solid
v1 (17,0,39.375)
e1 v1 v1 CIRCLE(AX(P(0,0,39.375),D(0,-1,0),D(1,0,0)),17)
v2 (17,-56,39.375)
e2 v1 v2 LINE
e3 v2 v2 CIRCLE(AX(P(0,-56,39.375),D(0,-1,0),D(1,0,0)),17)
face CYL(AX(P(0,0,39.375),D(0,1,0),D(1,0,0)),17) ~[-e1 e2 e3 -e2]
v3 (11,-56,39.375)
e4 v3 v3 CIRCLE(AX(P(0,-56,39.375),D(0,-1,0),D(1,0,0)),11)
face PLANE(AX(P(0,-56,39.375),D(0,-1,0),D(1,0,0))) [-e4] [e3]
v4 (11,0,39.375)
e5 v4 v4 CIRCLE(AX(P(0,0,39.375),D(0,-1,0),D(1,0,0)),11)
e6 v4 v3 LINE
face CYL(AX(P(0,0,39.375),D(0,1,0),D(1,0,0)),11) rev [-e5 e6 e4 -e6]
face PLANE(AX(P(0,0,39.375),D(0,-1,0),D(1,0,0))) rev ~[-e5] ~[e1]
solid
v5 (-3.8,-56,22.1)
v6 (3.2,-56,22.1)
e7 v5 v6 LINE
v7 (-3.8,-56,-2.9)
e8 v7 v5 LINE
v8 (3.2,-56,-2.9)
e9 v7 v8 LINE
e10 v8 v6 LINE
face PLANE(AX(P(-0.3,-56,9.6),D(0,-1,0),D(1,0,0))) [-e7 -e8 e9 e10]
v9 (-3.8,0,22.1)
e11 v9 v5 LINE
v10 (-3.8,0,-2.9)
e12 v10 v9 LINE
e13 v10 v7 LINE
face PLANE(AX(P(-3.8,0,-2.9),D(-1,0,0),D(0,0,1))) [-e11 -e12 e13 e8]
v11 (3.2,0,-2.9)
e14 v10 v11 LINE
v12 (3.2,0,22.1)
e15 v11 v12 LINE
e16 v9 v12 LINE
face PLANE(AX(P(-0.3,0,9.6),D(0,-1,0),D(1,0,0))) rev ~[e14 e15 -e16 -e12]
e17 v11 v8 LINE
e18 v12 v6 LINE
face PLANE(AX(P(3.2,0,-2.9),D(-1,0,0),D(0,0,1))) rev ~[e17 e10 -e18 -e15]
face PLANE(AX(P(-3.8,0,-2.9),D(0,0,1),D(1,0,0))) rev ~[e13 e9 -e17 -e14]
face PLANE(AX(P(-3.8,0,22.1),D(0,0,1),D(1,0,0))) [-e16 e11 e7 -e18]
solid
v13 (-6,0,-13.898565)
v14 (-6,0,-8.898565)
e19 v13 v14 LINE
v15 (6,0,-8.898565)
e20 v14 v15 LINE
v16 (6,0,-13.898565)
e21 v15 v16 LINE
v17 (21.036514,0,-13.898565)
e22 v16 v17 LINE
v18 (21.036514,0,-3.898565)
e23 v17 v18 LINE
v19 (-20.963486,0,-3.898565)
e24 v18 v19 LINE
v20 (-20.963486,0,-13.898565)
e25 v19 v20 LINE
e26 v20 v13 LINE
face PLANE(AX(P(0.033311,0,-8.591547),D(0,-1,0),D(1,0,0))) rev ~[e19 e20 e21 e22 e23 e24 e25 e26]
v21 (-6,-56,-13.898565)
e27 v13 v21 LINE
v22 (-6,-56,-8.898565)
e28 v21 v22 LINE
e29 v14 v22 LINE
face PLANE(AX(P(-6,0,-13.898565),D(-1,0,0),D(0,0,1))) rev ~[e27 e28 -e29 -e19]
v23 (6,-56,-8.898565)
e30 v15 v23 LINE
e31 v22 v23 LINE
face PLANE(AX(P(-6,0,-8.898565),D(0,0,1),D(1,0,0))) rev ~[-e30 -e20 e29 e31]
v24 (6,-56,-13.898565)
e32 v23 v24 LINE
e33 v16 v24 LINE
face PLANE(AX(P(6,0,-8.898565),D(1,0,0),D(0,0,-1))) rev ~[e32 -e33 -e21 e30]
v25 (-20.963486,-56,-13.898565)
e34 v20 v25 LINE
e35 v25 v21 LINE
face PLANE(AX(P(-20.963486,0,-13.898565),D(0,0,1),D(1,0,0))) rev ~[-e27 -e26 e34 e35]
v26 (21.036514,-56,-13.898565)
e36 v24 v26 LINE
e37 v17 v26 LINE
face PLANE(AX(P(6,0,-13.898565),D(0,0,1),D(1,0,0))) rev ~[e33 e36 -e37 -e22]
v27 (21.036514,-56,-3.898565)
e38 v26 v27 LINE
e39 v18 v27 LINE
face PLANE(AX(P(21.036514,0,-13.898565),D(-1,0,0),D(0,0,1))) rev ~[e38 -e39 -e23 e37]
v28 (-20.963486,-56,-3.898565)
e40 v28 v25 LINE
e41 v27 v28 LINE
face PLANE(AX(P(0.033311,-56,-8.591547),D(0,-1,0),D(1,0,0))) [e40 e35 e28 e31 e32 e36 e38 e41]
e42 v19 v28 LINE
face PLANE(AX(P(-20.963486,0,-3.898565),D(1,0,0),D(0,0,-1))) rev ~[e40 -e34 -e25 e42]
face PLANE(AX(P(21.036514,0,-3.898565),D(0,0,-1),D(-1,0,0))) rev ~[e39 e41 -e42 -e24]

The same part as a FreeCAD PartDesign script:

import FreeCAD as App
import Part
import Sketcher

V = App.Vector
Q = App.Units.Quantity


def add_polygon(sketch, points):
    """Adds a closed chain of lines whose ends are joined by coincident constraints."""
    first, n = sketch.GeometryCount, len(points)
    for a, b in zip(points, points[1:] + points[:1]):
        sketch.addGeometry(Part.LineSegment(App.Vector(*a, 0), App.Vector(*b, 0)), False)
    for i in range(n):
        sketch.addConstraint(Sketcher.Constraint("Coincident", first + i, 2, first + (i + 1) % n, 1))

doc = App.newDocument("Part")
body = doc.addObject("PartDesign::Body", "Body")
body.AllowCompound = True

sketch1 = doc.addObject("Sketcher::SketchObject", "Sketch")
body.addObject(sketch1)
sketch1.AttachmentSupport = (doc.XZ_Plane, [""])
sketch1.MapMode = "FlatFace"
add_polygon(sketch1, [(-3.8, 22.1), (-3.8, -2.9), (3.2, -2.9), (3.2, 22.1)])
add_polygon(sketch1, [(6, -13.898565), (21.036514, -13.898565), (21.036514, -3.898565), (-20.963486, -3.898565), (-20.963486, -13.898565), (-6, -13.898565), (-6, -8.898565), (6, -8.898565)])
sketch1.addGeometry(Part.Circle(V(0, 39.375, 0), V(0, 0, 1), 17), False)
sketch1.addGeometry(Part.Circle(V(0, 39.375, 0), V(0, 0, 1), 11), False)
sketch1.addConstraint([
    Sketcher.Constraint("Vertical", 0),
    Sketcher.Constraint("Horizontal", 1),
    Sketcher.Constraint("Vertical", 2),
    Sketcher.Constraint("Horizontal", 3),
    Sketcher.Constraint("Horizontal", 4),
    Sketcher.Constraint("Vertical", 5),
    Sketcher.Constraint("Horizontal", 6),
    Sketcher.Constraint("Vertical", 7),
    Sketcher.Constraint("Horizontal", 8),
    Sketcher.Constraint("Vertical", 9),
    Sketcher.Constraint("Horizontal", 10),
    Sketcher.Constraint("Vertical", 11),
    Sketcher.Constraint("Coincident", 13, 3, 12, 3),
    Sketcher.Constraint("Symmetric", 8, 2, 11, 2, -2),
    Sketcher.Constraint("PointOnObject", 12, 3, -2),
    Sketcher.Constraint("Diameter", 12, Q("34 mm")),
    Sketcher.Constraint("Diameter", 13, Q("22 mm")),
    Sketcher.Constraint("DistanceX", 1, 1, 1, 2, Q("7 mm")),
    Sketcher.Constraint("DistanceX", 6, 2, 6, 1, Q("42 mm")),
    Sketcher.Constraint("DistanceX", 10, 1, 10, 2, Q("12 mm")),
    Sketcher.Constraint("DistanceY", 0, 2, 0, 1, Q("25 mm")),
    Sketcher.Constraint("DistanceY", 5, 1, 5, 2, Q("10 mm")),
    Sketcher.Constraint("DistanceY", 9, 1, 9, 2, Q("5 mm")),
    Sketcher.Constraint("DistanceX", 0, 2, -1, 1, Q("3.8 mm")),
    Sketcher.Constraint("DistanceY", 0, 2, -1, 1, Q("2.9 mm")),
    Sketcher.Constraint("DistanceY", -1, 1, 12, 3, Q("39.375 mm")),
    Sketcher.Constraint("DistanceX", 4, 1, 4, 2, Q("15.036514 mm")),
    Sketcher.Constraint("DistanceY", 4, 2, -1, 1, Q("13.898565 mm")),
])
pad1 = doc.addObject("PartDesign::Pad", "Pad")
body.addObject(pad1)
pad1.Profile = sketch1
pad1.Length = 56

doc.recompute()
